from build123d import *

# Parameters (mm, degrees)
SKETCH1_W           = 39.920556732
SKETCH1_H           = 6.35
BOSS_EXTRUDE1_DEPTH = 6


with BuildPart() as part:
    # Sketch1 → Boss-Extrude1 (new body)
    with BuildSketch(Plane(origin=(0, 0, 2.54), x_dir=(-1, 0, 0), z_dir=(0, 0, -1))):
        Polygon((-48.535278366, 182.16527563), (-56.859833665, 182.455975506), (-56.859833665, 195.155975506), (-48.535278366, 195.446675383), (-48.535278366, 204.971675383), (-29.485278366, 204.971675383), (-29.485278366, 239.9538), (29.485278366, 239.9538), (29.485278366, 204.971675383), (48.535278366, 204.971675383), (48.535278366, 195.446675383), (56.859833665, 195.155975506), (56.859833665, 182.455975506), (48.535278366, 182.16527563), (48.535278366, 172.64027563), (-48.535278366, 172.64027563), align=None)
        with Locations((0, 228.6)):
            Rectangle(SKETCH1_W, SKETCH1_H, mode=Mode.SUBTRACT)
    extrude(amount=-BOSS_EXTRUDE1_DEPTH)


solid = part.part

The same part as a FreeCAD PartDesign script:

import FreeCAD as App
import Part
import Sketcher
Q = App.Units.Quantity

doc = App.newDocument("Part")
body = doc.addObject("PartDesign::Body", "Body")

# Sketch on XY plane
sketch1 = body.newObject("Sketcher::SketchObject", "Sketch")
sketch1.AttachmentSupport = (doc.getObject("XY_Plane"), [""])
sketch1.MapMode = "FlatFace"
sketch1.AttachmentOffset = App.Placement(App.Vector(0, 0, 0.1 * 25.4), App.Rotation())
sketch1.addGeometry([
    Part.LineSegment(App.Vector(56.859834, 182.455976, 0), App.Vector(48.535278, 182.165276, 0)),  # 0
    Part.LineSegment(App.Vector(48.535278, 182.165276, 0), App.Vector(48.535278, 172.640276, 0)),  # 1
    Part.LineSegment(App.Vector(48.535278, 172.640276, 0), App.Vector(-48.535278, 172.640276, 0)),  # 2
    Part.LineSegment(App.Vector(-48.535278, 172.640276, 0), App.Vector(-48.535278, 182.165276, 0)),  # 3
    Part.LineSegment(App.Vector(-48.535278, 182.165276, 0), App.Vector(-56.859834, 182.455976, 0)),  # 4
    Part.LineSegment(App.Vector(-56.859834, 182.455976, 0), App.Vector(-56.859834, 195.155976, 0)),  # 5
    Part.LineSegment(App.Vector(-56.859834, 195.155976, 0), App.Vector(-48.535278, 195.446675, 0)),  # 6
    Part.LineSegment(App.Vector(-48.535278, 195.446675, 0), App.Vector(-48.535278, 204.971675, 0)),  # 7
    Part.LineSegment(App.Vector(-48.535278, 204.971675, 0), App.Vector(-29.485278, 204.971675, 0)),  # 8
    Part.LineSegment(App.Vector(-29.485278, 204.971675, 0), App.Vector(-29.485278, 239.9538, 0)),  # 9
    Part.LineSegment(App.Vector(-29.485278, 239.9538, 0), App.Vector(29.485278, 239.9538, 0)),  # 10
    Part.LineSegment(App.Vector(29.485278, 239.9538, 0), App.Vector(29.485278, 204.971675, 0)),  # 11
    Part.LineSegment(App.Vector(29.485278, 204.971675, 0), App.Vector(48.535278, 204.971675, 0)),  # 12
    Part.LineSegment(App.Vector(48.535278, 204.971675, 0), App.Vector(48.535278, 195.446675, 0)),  # 13
    Part.LineSegment(App.Vector(48.535278, 195.446675, 0), App.Vector(56.859834, 195.155976, 0)),  # 14
    Part.LineSegment(App.Vector(56.859834, 195.155976, 0), App.Vector(56.859834, 182.455976, 0)),  # 15
    Part.LineSegment(App.Vector(19.960278, 225.425, 0), App.Vector(19.960278, 231.775, 0)),  # 16
    Part.LineSegment(App.Vector(19.960278, 231.775, 0), App.Vector(-19.960278, 231.775, 0)),  # 17
    Part.LineSegment(App.Vector(-19.960278, 231.775, 0), App.Vector(-19.960278, 225.425, 0)),  # 18
    Part.LineSegment(App.Vector(-19.960278, 225.425, 0), App.Vector(19.960278, 225.425, 0)),  # 19
], False)
sketch1.addConstraint([
    Sketcher.Constraint("Coincident", 0, 2, 1, 1),
    Sketcher.Constraint("Coincident", 1, 2, 2, 1),
    Sketcher.Constraint("Coincident", 2, 2, 3, 1),
    Sketcher.Constraint("Coincident", 3, 2, 4, 1),
    Sketcher.Constraint("Coincident", 4, 2, 5, 1),
    Sketcher.Constraint("Coincident", 5, 2, 6, 1),
    Sketcher.Constraint("Coincident", 6, 2, 7, 1),
    Sketcher.Constraint("Coincident", 7, 2, 8, 1),
    Sketcher.Constraint("Coincident", 8, 2, 9, 1),
    Sketcher.Constraint("Coincident", 9, 2, 10, 1),
    Sketcher.Constraint("Coincident", 10, 2, 11, 1),
    Sketcher.Constraint("Coincident", 11, 2, 12, 1),
    Sketcher.Constraint("Coincident", 12, 2, 13, 1),
    Sketcher.Constraint("Coincident", 13, 2, 14, 1),
    Sketcher.Constraint("Coincident", 14, 2, 15, 1),
    Sketcher.Constraint("Coincident", 15, 2, 0, 1),
    Sketcher.Constraint("Coincident", 16, 2, 17, 1),
    Sketcher.Constraint("Coincident", 17, 2, 18, 1),
    Sketcher.Constraint("Coincident", 18, 2, 19, 1),
    Sketcher.Constraint("Coincident", 19, 2, 16, 1),
    Sketcher.Constraint("Vertical", 1),
    Sketcher.Constraint("Horizontal", 2),
    Sketcher.Constraint("Vertical", 3),
    Sketcher.Constraint("Vertical", 5),
    Sketcher.Constraint("Vertical", 7),
    Sketcher.Constraint("Horizontal", 8),
    Sketcher.Constraint("Vertical", 9),
    Sketcher.Constraint("Horizontal", 10),
    Sketcher.Constraint("Vertical", 11),
    Sketcher.Constraint("Horizontal", 12),
    Sketcher.Constraint("Vertical", 13),
    Sketcher.Constraint("Vertical", 15),
    Sketcher.Constraint("Vertical", 16),
    Sketcher.Constraint("Horizontal", 17),
    Sketcher.Constraint("Vertical", 18),
    Sketcher.Constraint("Horizontal", 19),
    Sketcher.Constraint("Symmetric", 0, 2, 3, 2, -2),
    Sketcher.Constraint("Symmetric", 8, 2, 11, 2, -2),
    Sketcher.Constraint("Symmetric", 6, 2, 13, 2, -2),
    Sketcher.Constraint("Symmetric", 5, 2, 14, 2, -2),
    Sketcher.Constraint("Parallel", 0, 6),
    Sketcher.Constraint("Parallel", 4, 14),
    Sketcher.Constraint("Vertical", 3, 2, 6, 2),
    Sketcher.Constraint("Equal", 3, 7),
    Sketcher.Constraint("DistanceY", 5, 1, 5, 2, Q("0.5 in")),
    Sketcher.Constraint("Angle", 0, Q("-178 deg")),
    Sketcher.Constraint("DistanceX", 8, 1, 8, 2, Q("0.75 in")),
    Sketcher.Constraint("DistanceY", 16, 1, 16, 2, Q("0.25 in")),
    Sketcher.Constraint("DistanceY", 1, 2, 1, 1, Q("0.375 in")),
    Sketcher.Constraint("DistanceY", -1, 1, 9, 2, Q("9.447 in")),
    Sketcher.Constraint("DistanceY", -1, 1, 16, 2, Q("9.125 in")),
    Sketcher.Constraint("DistanceX", 16, 2, 10, 2, Q("0.375 in")),
    Sketcher.Constraint("DistanceX", 9, 2, 17, 2, Q("0.375 in")),
    Sketcher.Constraint("DistanceY", 3, 2, 4, 2, Q("0.2907 mm")),
    Sketcher.Constraint("DistanceX", 2, 2, 2, 1, Q("97.070557 mm")),
    Sketcher.Constraint("DistanceY", 9, 1, 9, 2, Q("34.982125 mm")),
])
pad1 = body.newObject("PartDesign::Pad", "Pad")
pad1.Profile = sketch1
pad1.Length = 6

doc.recompute()
